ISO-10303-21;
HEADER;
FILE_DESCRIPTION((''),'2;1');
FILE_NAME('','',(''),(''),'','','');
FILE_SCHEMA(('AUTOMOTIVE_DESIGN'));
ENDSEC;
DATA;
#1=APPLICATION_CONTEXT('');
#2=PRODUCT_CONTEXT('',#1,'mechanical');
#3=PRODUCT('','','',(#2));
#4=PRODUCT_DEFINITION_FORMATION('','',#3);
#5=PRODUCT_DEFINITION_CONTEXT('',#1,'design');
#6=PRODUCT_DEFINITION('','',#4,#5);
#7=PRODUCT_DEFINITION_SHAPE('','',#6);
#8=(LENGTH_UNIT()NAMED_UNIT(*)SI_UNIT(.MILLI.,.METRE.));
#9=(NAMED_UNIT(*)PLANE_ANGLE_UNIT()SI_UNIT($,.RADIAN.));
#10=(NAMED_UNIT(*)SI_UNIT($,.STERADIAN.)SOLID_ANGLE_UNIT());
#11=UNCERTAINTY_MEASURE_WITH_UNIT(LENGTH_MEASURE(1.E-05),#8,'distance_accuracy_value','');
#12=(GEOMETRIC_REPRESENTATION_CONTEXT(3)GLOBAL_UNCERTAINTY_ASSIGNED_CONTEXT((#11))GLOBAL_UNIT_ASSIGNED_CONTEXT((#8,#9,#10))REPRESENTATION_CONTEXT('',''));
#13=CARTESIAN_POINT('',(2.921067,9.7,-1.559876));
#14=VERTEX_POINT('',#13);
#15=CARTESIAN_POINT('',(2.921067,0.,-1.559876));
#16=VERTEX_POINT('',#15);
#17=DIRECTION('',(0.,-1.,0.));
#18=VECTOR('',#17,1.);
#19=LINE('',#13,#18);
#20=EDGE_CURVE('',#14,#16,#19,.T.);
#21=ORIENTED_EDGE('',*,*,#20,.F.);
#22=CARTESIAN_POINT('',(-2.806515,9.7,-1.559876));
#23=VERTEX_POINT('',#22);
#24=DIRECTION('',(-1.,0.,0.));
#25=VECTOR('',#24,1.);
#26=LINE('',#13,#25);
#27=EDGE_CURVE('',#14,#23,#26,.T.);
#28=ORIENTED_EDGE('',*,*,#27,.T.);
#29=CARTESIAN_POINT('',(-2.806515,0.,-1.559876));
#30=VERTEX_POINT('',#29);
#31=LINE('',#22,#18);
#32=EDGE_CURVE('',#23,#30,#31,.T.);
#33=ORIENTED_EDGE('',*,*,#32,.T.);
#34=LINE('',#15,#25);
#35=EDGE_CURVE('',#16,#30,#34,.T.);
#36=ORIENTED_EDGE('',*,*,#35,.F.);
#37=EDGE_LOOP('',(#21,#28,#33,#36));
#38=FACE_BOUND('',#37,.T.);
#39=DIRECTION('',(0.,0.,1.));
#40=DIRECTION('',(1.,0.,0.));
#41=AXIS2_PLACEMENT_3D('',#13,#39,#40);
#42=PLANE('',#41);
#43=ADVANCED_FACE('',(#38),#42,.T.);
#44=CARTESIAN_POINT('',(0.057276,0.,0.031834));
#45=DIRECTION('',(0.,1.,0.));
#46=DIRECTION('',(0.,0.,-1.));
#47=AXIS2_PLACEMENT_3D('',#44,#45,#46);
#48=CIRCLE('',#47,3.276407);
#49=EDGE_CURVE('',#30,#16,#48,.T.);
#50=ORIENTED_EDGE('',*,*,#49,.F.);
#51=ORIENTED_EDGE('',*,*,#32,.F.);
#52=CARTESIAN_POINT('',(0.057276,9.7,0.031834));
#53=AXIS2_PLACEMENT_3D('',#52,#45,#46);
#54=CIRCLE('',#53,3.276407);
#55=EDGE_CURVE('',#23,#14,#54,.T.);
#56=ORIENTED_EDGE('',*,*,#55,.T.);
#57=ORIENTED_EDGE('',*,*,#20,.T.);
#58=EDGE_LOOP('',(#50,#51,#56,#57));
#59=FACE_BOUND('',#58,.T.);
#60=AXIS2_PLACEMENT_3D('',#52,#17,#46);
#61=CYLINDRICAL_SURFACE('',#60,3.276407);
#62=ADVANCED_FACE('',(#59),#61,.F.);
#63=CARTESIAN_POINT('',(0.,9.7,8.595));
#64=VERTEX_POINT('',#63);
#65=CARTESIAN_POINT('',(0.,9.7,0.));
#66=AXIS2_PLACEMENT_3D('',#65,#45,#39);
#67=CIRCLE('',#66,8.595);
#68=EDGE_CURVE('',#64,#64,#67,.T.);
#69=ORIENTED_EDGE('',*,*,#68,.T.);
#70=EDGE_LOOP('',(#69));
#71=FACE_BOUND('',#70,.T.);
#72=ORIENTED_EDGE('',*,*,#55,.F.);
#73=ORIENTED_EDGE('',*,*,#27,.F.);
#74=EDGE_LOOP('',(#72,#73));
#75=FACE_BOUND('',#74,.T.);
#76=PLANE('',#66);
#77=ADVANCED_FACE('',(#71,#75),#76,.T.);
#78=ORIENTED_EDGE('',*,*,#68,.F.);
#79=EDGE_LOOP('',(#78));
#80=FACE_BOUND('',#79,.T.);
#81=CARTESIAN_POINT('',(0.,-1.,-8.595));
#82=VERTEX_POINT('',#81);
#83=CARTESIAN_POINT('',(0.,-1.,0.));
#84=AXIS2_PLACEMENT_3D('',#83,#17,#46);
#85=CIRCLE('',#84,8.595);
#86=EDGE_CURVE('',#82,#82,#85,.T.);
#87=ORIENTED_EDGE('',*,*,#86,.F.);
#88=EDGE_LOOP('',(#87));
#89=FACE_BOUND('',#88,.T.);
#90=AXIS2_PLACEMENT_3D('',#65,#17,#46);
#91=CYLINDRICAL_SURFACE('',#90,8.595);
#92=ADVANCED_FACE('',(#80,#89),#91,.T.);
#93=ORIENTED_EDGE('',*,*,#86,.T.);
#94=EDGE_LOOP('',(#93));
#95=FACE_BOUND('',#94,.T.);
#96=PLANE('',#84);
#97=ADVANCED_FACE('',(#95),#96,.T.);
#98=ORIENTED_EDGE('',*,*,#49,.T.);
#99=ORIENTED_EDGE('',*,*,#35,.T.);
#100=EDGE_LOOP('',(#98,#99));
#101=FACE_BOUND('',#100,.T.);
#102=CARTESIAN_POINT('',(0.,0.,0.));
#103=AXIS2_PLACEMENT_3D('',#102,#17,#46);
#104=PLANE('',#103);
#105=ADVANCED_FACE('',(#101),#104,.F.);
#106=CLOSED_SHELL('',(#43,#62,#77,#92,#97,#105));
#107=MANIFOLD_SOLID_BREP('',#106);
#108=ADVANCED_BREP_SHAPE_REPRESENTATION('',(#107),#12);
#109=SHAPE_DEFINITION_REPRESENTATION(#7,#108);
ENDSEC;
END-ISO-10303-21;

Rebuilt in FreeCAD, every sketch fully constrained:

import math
import FreeCAD as App
import Part
import Sketcher
from FreeCAD import Vector
Q = App.Units.Quantity

doc = App.newDocument("Part")
body = doc.addObject("PartDesign::Body", "Body")

# Sketch on XZ plane
sketch1 = body.newObject("Sketcher::SketchObject", "Sketch")
sketch1.AttachmentSupport = (doc.getObject("XZ_Plane"), [""])
sketch1.MapMode = "FlatFace"
sketch1.addGeometry(Part.Circle(Vector(0, 0, 0), Vector(0, 0, 1), 8.595), False)
sketch1.addGeometry(Part.LineSegment(Vector(-2.806515, -1.559876, 0), Vector(2.921067, -1.559876, 0)), False)
sketch1.addGeometry(Part.ArcOfCircle(Part.Circle(Vector(0.057276, 0.031834, 0), Vector(0, 0, 1), 3.276407), math.radians(-29.065534), math.radians(209.065534)), False)
sketch1.addConstraint(Sketcher.Constraint("Coincident", 1, 1, 2, 2))
sketch1.addConstraint(Sketcher.Constraint("Coincident", 2, 1, 1, 2))
sketch1.addConstraint(Sketcher.Constraint("Horizontal", 1))
sketch1.addConstraint(Sketcher.Constraint("Coincident", 0, 3, -1, 1))
sketch1.addConstraint(Sketcher.Constraint("Diameter", 0, Q("17.19 mm")))
sketch1.addConstraint(Sketcher.Constraint("Radius", 2, Q("3.276407 mm")))
sketch1.addConstraint(Sketcher.Constraint("DistanceX", 1, 1, 1, 2, Q("5.727583 mm")))
sketch1.addConstraint(Sketcher.Constraint("DistanceX", -1, 1, 2, 3, Q("0.057276 mm")))
sketch1.addConstraint(Sketcher.Constraint("DistanceY", -1, 1, 2, 3, Q("0.031834 mm")))
pad1 = body.newObject("PartDesign::Pad", "Pad")
pad1.Profile = sketch1
pad1.Length = 9.7
pad1.Reversed = True

# Sketch on XZ plane
sketch2 = body.newObject("Sketcher::SketchObject", "Sketch001")
sketch2.AttachmentSupport = (doc.getObject("XZ_Plane"), [""])
sketch2.MapMode = "FlatFace"
sketch2.AttachmentOffset = App.Placement(Vector(0, 0, 1), App.Rotation())
sketch2.addGeometry(Part.Circle(Vector(0, 0, 0), Vector(0, 0, 1), 8.595), False)
sketch2.addConstraint(Sketcher.Constraint("Coincident", 0, 3, -1, 1))
sketch2.addConstraint(Sketcher.Constraint("Diameter", 0, Q("17.19 mm")))
pad2 = body.newObject("PartDesign::Pad", "Pad001")
pad2.Profile = sketch2
pad2.Length = 1
pad2.Reversed = True

doc.recompute()
